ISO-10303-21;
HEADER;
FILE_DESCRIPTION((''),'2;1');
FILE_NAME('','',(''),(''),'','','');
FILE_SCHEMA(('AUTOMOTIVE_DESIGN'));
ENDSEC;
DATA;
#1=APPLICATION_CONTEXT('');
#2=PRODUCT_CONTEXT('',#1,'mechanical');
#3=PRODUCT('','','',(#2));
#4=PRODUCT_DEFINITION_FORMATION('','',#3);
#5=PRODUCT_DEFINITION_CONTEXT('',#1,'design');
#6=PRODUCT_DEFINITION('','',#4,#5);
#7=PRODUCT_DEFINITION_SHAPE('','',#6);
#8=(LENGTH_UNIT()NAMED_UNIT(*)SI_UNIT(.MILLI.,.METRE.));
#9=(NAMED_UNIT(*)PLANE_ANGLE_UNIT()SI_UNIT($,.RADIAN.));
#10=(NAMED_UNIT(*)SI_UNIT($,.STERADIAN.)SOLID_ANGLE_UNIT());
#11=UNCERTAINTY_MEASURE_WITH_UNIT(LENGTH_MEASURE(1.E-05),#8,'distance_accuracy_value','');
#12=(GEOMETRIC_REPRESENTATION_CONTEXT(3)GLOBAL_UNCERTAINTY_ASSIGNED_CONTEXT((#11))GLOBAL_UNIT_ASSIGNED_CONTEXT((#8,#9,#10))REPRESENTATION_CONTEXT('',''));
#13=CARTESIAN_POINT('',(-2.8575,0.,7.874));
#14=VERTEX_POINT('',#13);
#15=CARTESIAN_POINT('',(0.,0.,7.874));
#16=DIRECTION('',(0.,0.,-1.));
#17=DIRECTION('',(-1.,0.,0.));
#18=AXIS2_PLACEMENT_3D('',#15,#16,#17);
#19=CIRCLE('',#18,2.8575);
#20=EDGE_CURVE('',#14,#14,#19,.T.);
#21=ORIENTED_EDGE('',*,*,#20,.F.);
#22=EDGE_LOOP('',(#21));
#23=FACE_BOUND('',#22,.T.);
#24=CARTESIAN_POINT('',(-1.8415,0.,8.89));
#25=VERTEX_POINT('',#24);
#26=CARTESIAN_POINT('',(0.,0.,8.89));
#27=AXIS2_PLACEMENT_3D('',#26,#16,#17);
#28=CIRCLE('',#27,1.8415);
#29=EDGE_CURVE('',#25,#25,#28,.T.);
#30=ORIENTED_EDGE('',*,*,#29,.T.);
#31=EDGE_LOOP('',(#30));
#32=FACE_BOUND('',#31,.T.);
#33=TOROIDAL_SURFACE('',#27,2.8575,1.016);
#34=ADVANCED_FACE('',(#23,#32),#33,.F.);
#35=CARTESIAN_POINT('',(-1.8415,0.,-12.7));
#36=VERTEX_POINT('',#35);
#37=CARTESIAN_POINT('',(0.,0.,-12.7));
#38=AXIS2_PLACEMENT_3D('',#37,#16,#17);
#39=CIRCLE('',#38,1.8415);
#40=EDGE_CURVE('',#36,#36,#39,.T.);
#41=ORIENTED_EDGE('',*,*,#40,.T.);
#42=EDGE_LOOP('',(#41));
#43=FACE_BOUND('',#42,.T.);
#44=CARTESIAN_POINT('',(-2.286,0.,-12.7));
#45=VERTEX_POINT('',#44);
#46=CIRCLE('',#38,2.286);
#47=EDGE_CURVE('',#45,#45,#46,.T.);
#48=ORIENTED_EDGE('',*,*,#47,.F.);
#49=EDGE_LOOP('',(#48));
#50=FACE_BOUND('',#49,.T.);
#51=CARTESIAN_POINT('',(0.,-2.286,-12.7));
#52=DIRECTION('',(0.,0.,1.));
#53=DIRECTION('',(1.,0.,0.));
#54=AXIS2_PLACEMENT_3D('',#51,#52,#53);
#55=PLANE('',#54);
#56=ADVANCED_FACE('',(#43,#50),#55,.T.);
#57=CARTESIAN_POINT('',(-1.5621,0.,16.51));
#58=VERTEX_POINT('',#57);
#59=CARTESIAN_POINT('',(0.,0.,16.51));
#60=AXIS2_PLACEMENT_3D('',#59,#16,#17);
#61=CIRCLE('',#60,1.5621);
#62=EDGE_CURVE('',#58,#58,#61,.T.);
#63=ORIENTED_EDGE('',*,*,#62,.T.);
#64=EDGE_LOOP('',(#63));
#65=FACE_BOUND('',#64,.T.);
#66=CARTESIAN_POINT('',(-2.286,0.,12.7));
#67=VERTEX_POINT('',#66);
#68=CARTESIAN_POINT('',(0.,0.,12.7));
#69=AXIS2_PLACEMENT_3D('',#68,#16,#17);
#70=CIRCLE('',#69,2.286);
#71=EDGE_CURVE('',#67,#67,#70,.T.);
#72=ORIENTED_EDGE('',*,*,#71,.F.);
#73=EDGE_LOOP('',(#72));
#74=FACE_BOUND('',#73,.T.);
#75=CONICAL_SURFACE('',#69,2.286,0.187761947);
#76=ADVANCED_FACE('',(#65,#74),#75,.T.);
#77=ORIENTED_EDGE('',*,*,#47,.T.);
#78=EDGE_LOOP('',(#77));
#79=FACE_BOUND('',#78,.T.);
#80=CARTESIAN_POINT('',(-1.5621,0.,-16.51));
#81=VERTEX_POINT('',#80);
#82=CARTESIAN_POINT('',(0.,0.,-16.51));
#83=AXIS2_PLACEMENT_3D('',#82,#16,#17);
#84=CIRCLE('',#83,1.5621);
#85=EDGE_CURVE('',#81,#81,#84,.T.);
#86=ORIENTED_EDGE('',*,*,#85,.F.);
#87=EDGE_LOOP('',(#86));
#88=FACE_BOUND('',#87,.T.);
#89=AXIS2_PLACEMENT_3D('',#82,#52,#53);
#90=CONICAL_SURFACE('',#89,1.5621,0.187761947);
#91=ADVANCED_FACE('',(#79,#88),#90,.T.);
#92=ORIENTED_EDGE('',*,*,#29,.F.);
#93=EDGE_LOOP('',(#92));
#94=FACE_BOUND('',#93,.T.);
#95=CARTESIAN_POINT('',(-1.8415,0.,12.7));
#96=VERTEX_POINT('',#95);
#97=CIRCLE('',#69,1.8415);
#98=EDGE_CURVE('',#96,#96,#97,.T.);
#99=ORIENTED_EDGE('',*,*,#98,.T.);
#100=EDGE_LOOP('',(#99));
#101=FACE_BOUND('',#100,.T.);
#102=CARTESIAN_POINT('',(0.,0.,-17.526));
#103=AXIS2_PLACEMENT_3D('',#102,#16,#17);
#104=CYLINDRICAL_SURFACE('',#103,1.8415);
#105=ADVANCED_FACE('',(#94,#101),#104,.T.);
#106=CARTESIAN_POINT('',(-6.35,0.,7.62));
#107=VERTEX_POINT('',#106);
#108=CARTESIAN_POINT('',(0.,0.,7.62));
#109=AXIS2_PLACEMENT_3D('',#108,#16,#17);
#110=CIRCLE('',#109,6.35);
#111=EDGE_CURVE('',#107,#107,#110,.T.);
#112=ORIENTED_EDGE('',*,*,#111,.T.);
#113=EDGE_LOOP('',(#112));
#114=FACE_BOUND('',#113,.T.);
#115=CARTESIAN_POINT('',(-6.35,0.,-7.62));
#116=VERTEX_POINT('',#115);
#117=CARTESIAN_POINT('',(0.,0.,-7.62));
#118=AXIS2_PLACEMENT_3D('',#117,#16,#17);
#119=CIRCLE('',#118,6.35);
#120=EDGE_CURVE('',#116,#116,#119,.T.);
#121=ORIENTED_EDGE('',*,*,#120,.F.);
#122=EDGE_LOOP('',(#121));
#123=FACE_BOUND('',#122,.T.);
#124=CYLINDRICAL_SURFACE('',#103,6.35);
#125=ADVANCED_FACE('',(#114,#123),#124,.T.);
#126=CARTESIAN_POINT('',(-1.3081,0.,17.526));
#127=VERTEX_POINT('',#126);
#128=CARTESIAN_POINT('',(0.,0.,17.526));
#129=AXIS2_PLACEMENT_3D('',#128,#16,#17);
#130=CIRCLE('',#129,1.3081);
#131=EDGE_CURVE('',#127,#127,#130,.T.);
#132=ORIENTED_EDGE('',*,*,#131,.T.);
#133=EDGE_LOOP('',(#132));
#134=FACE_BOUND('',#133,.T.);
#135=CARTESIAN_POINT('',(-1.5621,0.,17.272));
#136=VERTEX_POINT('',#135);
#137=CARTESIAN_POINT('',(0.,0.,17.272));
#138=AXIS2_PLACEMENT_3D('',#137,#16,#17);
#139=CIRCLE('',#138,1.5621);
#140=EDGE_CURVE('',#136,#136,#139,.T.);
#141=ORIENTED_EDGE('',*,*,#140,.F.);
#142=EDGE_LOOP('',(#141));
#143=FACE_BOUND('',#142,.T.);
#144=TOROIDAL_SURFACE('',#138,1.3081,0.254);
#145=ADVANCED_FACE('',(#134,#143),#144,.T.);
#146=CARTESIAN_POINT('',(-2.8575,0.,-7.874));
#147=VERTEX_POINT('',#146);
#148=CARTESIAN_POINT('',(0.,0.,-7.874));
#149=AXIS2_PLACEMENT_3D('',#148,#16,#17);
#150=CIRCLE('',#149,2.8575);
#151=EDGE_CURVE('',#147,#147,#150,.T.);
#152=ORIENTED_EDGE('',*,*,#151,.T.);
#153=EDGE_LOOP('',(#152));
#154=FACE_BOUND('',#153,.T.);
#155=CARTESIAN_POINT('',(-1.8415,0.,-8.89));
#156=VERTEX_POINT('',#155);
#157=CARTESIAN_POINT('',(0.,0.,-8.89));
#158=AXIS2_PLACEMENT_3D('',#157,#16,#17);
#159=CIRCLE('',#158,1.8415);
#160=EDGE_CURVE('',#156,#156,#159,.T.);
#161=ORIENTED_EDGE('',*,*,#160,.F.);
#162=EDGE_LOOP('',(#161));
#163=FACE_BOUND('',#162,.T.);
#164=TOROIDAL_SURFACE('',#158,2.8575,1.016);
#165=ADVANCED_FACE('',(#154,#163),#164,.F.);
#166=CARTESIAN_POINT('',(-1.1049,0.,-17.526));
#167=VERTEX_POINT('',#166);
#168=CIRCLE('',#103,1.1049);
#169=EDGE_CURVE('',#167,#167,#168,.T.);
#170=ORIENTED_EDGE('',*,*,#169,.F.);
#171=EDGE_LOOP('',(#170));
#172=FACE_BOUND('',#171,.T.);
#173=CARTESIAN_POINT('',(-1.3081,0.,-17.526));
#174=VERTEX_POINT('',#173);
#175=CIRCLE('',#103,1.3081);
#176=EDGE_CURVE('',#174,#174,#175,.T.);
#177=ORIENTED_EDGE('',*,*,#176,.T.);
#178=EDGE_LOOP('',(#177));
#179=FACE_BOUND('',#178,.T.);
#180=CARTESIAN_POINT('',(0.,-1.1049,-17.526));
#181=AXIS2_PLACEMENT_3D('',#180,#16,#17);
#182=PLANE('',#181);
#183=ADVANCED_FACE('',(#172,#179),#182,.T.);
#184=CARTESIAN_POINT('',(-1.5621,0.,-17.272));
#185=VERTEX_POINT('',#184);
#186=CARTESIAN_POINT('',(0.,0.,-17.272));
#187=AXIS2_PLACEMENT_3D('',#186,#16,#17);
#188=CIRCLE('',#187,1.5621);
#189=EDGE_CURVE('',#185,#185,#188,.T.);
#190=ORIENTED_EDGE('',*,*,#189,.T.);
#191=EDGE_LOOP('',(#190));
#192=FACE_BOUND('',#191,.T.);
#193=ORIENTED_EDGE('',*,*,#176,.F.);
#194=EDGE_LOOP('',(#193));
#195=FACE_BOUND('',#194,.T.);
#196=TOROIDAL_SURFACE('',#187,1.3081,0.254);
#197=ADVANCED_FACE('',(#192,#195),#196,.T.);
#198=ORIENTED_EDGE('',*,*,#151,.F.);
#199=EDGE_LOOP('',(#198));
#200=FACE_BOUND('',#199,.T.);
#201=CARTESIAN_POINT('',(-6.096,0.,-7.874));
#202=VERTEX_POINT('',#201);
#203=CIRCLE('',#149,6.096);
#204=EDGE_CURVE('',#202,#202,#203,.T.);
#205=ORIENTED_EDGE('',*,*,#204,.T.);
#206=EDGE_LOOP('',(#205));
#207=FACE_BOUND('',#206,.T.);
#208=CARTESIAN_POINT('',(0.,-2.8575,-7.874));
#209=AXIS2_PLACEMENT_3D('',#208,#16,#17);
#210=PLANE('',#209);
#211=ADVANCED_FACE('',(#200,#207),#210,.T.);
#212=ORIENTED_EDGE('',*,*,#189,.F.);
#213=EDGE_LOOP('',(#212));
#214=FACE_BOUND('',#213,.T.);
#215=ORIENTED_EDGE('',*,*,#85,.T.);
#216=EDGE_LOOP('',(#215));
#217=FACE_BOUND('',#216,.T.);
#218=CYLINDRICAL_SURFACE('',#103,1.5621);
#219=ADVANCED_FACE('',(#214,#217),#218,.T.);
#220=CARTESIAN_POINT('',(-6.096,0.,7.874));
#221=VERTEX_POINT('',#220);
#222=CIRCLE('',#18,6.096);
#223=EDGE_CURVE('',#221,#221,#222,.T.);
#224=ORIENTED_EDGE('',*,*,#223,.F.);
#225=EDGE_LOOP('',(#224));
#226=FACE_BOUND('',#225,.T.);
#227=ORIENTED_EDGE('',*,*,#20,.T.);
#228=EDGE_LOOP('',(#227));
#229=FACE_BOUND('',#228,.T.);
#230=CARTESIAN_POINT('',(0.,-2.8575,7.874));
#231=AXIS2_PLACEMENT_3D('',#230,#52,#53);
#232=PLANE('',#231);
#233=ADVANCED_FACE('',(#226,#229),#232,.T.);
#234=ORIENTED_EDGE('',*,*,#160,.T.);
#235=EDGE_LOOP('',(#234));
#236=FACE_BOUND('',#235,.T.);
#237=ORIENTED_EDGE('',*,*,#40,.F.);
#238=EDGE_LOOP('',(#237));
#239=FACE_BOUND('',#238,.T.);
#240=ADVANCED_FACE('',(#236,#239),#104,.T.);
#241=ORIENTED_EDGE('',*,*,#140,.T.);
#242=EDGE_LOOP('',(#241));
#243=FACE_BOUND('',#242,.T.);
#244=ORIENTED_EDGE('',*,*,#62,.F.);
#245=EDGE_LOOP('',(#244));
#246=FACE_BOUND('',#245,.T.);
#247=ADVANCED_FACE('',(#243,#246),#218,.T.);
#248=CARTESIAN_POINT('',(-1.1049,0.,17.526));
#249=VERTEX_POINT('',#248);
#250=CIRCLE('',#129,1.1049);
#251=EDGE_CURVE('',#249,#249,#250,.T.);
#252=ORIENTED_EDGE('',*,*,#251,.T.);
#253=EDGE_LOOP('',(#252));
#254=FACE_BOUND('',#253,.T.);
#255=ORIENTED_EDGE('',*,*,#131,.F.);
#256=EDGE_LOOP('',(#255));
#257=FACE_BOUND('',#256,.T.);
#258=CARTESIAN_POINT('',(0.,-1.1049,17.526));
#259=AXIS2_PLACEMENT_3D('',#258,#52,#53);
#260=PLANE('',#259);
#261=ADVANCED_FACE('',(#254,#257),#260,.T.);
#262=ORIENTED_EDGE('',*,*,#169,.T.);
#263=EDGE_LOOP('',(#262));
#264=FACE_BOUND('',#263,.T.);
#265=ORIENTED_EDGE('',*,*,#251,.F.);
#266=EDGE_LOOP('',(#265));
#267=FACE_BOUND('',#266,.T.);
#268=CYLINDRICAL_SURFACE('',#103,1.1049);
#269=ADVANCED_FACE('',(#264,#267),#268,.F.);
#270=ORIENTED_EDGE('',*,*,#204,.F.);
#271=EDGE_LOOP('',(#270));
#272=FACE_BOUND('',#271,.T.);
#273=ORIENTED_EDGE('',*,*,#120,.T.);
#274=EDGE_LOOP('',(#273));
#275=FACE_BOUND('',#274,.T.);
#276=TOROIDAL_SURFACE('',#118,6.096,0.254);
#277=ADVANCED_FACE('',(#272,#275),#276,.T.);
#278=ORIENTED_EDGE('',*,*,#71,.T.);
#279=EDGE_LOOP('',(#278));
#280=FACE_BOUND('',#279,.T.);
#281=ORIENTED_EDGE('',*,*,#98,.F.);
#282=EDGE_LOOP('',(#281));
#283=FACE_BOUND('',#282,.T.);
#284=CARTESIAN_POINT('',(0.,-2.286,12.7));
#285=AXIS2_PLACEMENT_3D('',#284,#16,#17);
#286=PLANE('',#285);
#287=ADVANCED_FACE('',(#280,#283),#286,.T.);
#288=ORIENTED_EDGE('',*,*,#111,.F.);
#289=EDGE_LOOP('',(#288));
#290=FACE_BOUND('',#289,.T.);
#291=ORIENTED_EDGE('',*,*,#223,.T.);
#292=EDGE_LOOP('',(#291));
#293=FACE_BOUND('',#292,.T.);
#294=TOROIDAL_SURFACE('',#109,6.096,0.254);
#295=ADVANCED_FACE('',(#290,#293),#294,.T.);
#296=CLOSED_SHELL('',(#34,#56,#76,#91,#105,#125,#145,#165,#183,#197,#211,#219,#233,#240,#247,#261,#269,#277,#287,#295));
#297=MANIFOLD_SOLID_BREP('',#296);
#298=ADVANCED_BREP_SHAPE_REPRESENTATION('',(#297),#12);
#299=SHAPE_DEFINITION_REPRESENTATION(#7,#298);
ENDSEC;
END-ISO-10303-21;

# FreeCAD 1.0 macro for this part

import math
import FreeCAD as App
import Part
import Sketcher
Q = App.Units.Quantity

doc = App.newDocument("Part")
body = doc.addObject("PartDesign::Body", "Body")

# Sketch on YZ plane
sketch1 = body.newObject("Sketcher::SketchObject", "Sketch")
sketch1.AttachmentSupport = (doc.getObject("YZ_Plane"), [""])
sketch1.MapMode = "FlatFace"
sketch1.addGeometry([
    Part.LineSegment(App.Vector(1.31, 17.53, 0), App.Vector(1.1, 17.53, 0)),  # 0
    Part.LineSegment(App.Vector(1.1, 17.53, 0), App.Vector(1.1, -17.53, 0)),  # 1
    Part.LineSegment(App.Vector(1.1, -17.53, 0), App.Vector(1.31, -17.53, 0)),  # 2
    Part.ArcOfCircle(Part.Circle(App.Vector(1.31, -17.27, 0), App.Vector(0, 0, 1), 0.25), math.radians(-90), math.radians(0)),  # 3
    Part.LineSegment(App.Vector(1.56, -17.27, 0), App.Vector(1.56, -16.51, 0)),  # 4
    Part.LineSegment(App.Vector(1.56, -16.51, 0), App.Vector(2.29, -12.7, 0)),  # 5
    Part.LineSegment(App.Vector(2.29, -12.7, 0), App.Vector(1.84, -12.7, 0)),  # 6
    Part.LineSegment(App.Vector(1.84, -12.7, 0), App.Vector(1.84, -8.89, 0)),  # 7
    Part.ArcOfCircle(Part.Circle(App.Vector(2.86, -8.89, 0), App.Vector(0, 0, 1), 1.02), math.radians(90), math.radians(180)),  # 8
    Part.LineSegment(App.Vector(2.86, -7.87, 0), App.Vector(6.1, -7.87, 0)),  # 9
    Part.ArcOfCircle(Part.Circle(App.Vector(6.1, -7.62, 0), App.Vector(0, 0, 1), 0.25), math.radians(-90), math.radians(0)),  # 10
    Part.LineSegment(App.Vector(6.35, -7.62, 0), App.Vector(6.35, 7.62, 0)),  # 11
    Part.ArcOfCircle(Part.Circle(App.Vector(6.1, 7.62, 0), App.Vector(0, 0, 1), 0.25), math.radians(0), math.radians(90)),  # 12
    Part.LineSegment(App.Vector(6.1, 7.87, 0), App.Vector(2.86, 7.87, 0)),  # 13
    Part.ArcOfCircle(Part.Circle(App.Vector(2.86, 8.89, 0), App.Vector(0, 0, 1), 1.02), math.radians(180), math.radians(270)),  # 14
    Part.LineSegment(App.Vector(1.84, 8.89, 0), App.Vector(1.84, 12.7, 0)),  # 15
    Part.LineSegment(App.Vector(1.84, 12.7, 0), App.Vector(2.29, 12.7, 0)),  # 16
    Part.LineSegment(App.Vector(2.29, 12.7, 0), App.Vector(1.56, 16.51, 0)),  # 17
    Part.LineSegment(App.Vector(1.56, 16.51, 0), App.Vector(1.56, 17.27, 0)),  # 18
    Part.ArcOfCircle(Part.Circle(App.Vector(1.31, 17.27, 0), App.Vector(0, 0, 1), 0.25), math.radians(0), math.radians(90)),  # 19
], False)
sketch1.addConstraint([
    Sketcher.Constraint("Coincident", 0, 2, 1, 1),
    Sketcher.Constraint("Coincident", 1, 2, 2, 1),
    Sketcher.Constraint("Tangent", 2, 2, 3, 1),
    Sketcher.Constraint("Tangent", 3, 2, 4, 1),
    Sketcher.Constraint("Coincident", 4, 2, 5, 1),
    Sketcher.Constraint("Coincident", 5, 2, 6, 1),
    Sketcher.Constraint("Coincident", 6, 2, 7, 1),
    Sketcher.Constraint("Tangent", 7, 2, 8, 2),
    Sketcher.Constraint("Tangent", 8, 1, 9, 1),
    Sketcher.Constraint("Tangent", 9, 2, 10, 1),
    Sketcher.Constraint("Tangent", 10, 2, 11, 1),
    Sketcher.Constraint("Tangent", 11, 2, 12, 1),
    Sketcher.Constraint("Tangent", 12, 2, 13, 1),
    Sketcher.Constraint("Tangent", 13, 2, 14, 2),
    Sketcher.Constraint("Tangent", 14, 1, 15, 1),
    Sketcher.Constraint("Coincident", 15, 2, 16, 1),
    Sketcher.Constraint("Coincident", 16, 2, 17, 1),
    Sketcher.Constraint("Coincident", 17, 2, 18, 1),
    Sketcher.Constraint("Tangent", 18, 2, 19, 1),
    Sketcher.Constraint("Tangent", 19, 2, 0, 1),
    Sketcher.Constraint("Horizontal", 0),
    Sketcher.Constraint("Vertical", 1),
    Sketcher.Constraint("Horizontal", 2),
    Sketcher.Constraint("Vertical", 4),
    Sketcher.Constraint("Horizontal", 6),
    Sketcher.Constraint("Vertical", 7),
    Sketcher.Constraint("Horizontal", 9),
    Sketcher.Constraint("Vertical", 11),
    Sketcher.Constraint("Horizontal", 13),
    Sketcher.Constraint("Vertical", 15),
    Sketcher.Constraint("Horizontal", 16),
    Sketcher.Constraint("Vertical", 18),
    Sketcher.Constraint("Equal", 3, 10),
    Sketcher.Constraint("Equal", 10, 12),
    Sketcher.Constraint("Equal", 8, 14),
    Sketcher.Constraint("Equal", 12, 19),
    Sketcher.Constraint("Symmetric", 8, 3, 14, 3, -1),
    Sketcher.Constraint("Symmetric", 3, 3, 19, 3, -1),
    Sketcher.Constraint("Symmetric", 5, 2, 16, 2, -1),
    Sketcher.Constraint("Equal", 4, 18),
    Sketcher.Constraint("Radius", 3, Q("0.01 in")),
    Sketcher.Constraint("Radius", 8, Q("0.04 in")),
    Sketcher.Constraint("DistanceY", 11, 1, 11, 2, Q("0.6 in")),
    Sketcher.Constraint("DistanceY", 1, 2, 1, 1, Q("1.38 in")),
    Sketcher.Constraint("DistanceY", 4, 1, 4, 2, Q("0.03 in")),
    Sketcher.Constraint("DistanceY", 7, 1, 7, 2, Q("0.15 in")),
    Sketcher.Constraint("DistanceX", 0, 2, 0, 1, Q("0.008 in")),
    Sketcher.Constraint("DistanceX", -1, 1, 10, 3, Q("0.24 in")),
    Sketcher.Constraint("DistanceX", -1, 1, 5, 2, Q("0.09 in")),
    Sketcher.Constraint("DistanceX", 6, 2, 6, 1, Q("0.0175 in")),
    Sketcher.Constraint("DistanceX", 3, 3, 8, 3, Q("0.061 in")),
])
revolution = body.newObject("PartDesign::Revolution", "Revolution")
revolution.Profile = sketch1
revolution.ReferenceAxis = (sketch1, ["V_Axis"])
revolution.Angle = 360

doc.recompute()
